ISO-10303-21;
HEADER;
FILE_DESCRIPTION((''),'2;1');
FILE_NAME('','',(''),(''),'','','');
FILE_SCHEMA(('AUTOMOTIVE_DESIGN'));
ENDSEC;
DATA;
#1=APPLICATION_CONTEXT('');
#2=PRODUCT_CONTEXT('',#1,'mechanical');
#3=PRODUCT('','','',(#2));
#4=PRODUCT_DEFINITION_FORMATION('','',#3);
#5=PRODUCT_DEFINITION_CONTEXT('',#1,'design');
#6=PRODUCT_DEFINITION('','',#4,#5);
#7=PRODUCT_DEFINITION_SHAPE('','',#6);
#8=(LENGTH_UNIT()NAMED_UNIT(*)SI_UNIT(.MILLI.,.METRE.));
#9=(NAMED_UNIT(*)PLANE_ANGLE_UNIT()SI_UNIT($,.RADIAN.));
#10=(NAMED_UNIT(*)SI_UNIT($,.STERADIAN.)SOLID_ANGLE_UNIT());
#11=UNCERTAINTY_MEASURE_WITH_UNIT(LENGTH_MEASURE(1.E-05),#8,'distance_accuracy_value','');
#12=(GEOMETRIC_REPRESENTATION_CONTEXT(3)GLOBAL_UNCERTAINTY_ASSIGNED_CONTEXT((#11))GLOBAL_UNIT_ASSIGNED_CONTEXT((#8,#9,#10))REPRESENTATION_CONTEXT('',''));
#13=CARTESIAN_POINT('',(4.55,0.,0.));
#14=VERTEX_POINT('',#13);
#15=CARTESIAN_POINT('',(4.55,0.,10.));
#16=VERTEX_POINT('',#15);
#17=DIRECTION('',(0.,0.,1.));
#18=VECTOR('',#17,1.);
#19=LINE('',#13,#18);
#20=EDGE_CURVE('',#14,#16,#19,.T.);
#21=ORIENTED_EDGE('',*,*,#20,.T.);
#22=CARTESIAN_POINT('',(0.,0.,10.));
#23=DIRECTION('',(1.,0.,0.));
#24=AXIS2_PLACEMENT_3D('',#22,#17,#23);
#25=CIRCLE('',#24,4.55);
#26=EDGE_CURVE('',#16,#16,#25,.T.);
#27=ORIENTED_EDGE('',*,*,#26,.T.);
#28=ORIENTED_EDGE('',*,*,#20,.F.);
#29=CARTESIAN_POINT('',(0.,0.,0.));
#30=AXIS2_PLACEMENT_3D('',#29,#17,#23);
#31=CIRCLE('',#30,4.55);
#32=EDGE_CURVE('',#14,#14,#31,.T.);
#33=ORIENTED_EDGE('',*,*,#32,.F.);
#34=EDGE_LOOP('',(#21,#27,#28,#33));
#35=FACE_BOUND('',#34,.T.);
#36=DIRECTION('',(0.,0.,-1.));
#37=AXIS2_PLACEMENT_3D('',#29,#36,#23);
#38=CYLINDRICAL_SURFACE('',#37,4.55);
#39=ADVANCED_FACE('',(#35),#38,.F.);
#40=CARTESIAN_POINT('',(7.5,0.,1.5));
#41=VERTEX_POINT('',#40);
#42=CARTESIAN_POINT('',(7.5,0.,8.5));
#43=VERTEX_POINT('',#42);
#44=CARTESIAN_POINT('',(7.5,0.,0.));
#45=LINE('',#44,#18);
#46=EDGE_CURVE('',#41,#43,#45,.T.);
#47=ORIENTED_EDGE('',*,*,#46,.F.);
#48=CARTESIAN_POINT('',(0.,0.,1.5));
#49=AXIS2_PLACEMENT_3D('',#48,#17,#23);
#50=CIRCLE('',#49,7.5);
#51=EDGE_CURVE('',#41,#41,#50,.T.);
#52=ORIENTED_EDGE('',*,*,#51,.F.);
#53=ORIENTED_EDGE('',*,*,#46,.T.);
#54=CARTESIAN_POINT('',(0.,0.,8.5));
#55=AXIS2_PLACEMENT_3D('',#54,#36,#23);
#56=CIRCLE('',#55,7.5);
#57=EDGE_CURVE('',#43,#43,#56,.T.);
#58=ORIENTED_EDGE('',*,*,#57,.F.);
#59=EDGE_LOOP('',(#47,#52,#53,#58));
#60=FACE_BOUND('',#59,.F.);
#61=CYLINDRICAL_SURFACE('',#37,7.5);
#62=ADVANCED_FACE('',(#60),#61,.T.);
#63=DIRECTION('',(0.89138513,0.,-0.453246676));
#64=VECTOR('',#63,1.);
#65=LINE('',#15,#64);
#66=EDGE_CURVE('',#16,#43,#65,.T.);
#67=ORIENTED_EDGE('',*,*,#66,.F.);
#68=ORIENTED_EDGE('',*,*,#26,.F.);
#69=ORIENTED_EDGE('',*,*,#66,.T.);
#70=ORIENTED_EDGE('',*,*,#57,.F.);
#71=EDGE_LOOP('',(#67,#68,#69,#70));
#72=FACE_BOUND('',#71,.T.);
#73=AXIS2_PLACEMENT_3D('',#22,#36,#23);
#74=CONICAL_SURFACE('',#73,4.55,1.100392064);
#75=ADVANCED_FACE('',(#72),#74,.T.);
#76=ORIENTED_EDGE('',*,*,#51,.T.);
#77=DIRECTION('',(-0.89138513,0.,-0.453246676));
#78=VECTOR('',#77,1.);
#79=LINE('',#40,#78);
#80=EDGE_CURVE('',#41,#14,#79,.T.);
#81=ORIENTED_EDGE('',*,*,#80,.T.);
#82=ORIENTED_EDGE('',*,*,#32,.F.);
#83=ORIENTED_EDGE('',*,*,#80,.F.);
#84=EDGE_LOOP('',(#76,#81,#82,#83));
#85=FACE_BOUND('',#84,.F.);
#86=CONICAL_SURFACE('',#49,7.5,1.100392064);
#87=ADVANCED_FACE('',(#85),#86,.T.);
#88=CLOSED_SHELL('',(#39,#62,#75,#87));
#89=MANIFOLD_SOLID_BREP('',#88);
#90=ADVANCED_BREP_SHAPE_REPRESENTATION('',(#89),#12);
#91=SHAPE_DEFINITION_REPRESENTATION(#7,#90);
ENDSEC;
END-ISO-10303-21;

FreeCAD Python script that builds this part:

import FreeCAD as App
import Part
import Sketcher

doc = App.newDocument("Part")
body = doc.addObject("PartDesign::Body", "Body")

sketch1 = doc.addObject("Sketcher::SketchObject", "Sketch")
body.addObject(sketch1)
sketch1.AttachmentSupport = (doc.XY_Plane, [""])
sketch1.MapMode = "FlatFace"
sketch1.addGeometry([
    Part.Circle(App.Vector(0, 0, 0), App.Vector(0, 0, 1), 7.5),
    Part.Circle(App.Vector(0, 0, 0), App.Vector(0, 0, 1), 4.5),
], False)
sketch1.addConstraint([
    Sketcher.Constraint("Coincident", 0, 3, -1, 1),
    Sketcher.Constraint("Coincident", 1, 3, -1, 1),
    Sketcher.Constraint("Diameter", 0, 15.0),
    Sketcher.Constraint("Diameter", 1, 9.1),
])
pad1 = doc.addObject("PartDesign::Pad", "Pad")
body.addObject(pad1)
pad1.Profile = sketch1
pad1.Length = 10

sketch2 = doc.addObject("Sketcher::SketchObject", "Sketch001")
body.addObject(sketch2)
sketch2.AttachmentSupport = (doc.XZ_Plane, [""])
sketch2.MapMode = "FlatFace"
sketch2.addGeometry([
    Part.LineSegment(App.Vector(7.5, 1.5, 0), App.Vector(4.5, 0, 0)),
    Part.LineSegment(App.Vector(4.5, 0, 0), App.Vector(7.5, 0, 0)),
    Part.LineSegment(App.Vector(7.5, 0, 0), App.Vector(7.5, 1.5, 0)),
], False)
sketch2.addConstraint([
    Sketcher.Constraint("Coincident", 0, 2, 1, 1),
    Sketcher.Constraint("Coincident", 1, 2, 2, 1),
    Sketcher.Constraint("Coincident", 2, 2, 0, 1),
    Sketcher.Constraint("Horizontal", 1),
    Sketcher.Constraint("Vertical", 2),
    Sketcher.Constraint("PointOnObject", 0, 2, -1),
    Sketcher.Constraint("DistanceY", 2, 1, 2, 2, 1.5),
    Sketcher.Constraint("DistanceX", 1, 1, 1, 2, 2.95),
    Sketcher.Constraint("DistanceX", -1, 1, 1, 2, 7.5),
])
groove = doc.addObject("PartDesign::Groove", "Groove")
body.addObject(groove)
groove.Profile = sketch2
groove.ReferenceAxis = (sketch2, ["V_Axis"])
groove.Angle = 360

sketch3 = doc.addObject("Sketcher::SketchObject", "Sketch002")
body.addObject(sketch3)
sketch3.AttachmentSupport = (doc.XZ_Plane, [""])
sketch3.MapMode = "FlatFace"
sketch3.addGeometry([
    Part.LineSegment(App.Vector(7.5, 10, 0), App.Vector(4.5, 10, 0)),
    Part.LineSegment(App.Vector(4.5, 10, 0), App.Vector(7.5, 8.5, 0)),
    Part.LineSegment(App.Vector(7.5, 8.5, 0), App.Vector(7.5, 10, 0)),
], False)
sketch3.addConstraint([
    Sketcher.Constraint("Coincident", 0, 2, 1, 1),
    Sketcher.Constraint("Coincident", 1, 2, 2, 1),
    Sketcher.Constraint("Coincident", 2, 2, 0, 1),
    Sketcher.Constraint("Horizontal", 0),
    Sketcher.Constraint("Vertical", 2),
    Sketcher.Constraint("DistanceY", 2, 1, 2, 2, 1.5),
    Sketcher.Constraint("DistanceY", -1, 1, 0, 2, 10.0),
    Sketcher.Constraint("DistanceX", 0, 2, 0, 1, 2.95),
    Sketcher.Constraint("DistanceX", -1, 1, 1, 2, 7.5),
])
groove2 = doc.addObject("PartDesign::Groove", "Groove001")
body.addObject(groove2)
groove2.Profile = sketch3
groove2.ReferenceAxis = (sketch3, ["V_Axis"])
groove2.Angle = 360

doc.recompute()
